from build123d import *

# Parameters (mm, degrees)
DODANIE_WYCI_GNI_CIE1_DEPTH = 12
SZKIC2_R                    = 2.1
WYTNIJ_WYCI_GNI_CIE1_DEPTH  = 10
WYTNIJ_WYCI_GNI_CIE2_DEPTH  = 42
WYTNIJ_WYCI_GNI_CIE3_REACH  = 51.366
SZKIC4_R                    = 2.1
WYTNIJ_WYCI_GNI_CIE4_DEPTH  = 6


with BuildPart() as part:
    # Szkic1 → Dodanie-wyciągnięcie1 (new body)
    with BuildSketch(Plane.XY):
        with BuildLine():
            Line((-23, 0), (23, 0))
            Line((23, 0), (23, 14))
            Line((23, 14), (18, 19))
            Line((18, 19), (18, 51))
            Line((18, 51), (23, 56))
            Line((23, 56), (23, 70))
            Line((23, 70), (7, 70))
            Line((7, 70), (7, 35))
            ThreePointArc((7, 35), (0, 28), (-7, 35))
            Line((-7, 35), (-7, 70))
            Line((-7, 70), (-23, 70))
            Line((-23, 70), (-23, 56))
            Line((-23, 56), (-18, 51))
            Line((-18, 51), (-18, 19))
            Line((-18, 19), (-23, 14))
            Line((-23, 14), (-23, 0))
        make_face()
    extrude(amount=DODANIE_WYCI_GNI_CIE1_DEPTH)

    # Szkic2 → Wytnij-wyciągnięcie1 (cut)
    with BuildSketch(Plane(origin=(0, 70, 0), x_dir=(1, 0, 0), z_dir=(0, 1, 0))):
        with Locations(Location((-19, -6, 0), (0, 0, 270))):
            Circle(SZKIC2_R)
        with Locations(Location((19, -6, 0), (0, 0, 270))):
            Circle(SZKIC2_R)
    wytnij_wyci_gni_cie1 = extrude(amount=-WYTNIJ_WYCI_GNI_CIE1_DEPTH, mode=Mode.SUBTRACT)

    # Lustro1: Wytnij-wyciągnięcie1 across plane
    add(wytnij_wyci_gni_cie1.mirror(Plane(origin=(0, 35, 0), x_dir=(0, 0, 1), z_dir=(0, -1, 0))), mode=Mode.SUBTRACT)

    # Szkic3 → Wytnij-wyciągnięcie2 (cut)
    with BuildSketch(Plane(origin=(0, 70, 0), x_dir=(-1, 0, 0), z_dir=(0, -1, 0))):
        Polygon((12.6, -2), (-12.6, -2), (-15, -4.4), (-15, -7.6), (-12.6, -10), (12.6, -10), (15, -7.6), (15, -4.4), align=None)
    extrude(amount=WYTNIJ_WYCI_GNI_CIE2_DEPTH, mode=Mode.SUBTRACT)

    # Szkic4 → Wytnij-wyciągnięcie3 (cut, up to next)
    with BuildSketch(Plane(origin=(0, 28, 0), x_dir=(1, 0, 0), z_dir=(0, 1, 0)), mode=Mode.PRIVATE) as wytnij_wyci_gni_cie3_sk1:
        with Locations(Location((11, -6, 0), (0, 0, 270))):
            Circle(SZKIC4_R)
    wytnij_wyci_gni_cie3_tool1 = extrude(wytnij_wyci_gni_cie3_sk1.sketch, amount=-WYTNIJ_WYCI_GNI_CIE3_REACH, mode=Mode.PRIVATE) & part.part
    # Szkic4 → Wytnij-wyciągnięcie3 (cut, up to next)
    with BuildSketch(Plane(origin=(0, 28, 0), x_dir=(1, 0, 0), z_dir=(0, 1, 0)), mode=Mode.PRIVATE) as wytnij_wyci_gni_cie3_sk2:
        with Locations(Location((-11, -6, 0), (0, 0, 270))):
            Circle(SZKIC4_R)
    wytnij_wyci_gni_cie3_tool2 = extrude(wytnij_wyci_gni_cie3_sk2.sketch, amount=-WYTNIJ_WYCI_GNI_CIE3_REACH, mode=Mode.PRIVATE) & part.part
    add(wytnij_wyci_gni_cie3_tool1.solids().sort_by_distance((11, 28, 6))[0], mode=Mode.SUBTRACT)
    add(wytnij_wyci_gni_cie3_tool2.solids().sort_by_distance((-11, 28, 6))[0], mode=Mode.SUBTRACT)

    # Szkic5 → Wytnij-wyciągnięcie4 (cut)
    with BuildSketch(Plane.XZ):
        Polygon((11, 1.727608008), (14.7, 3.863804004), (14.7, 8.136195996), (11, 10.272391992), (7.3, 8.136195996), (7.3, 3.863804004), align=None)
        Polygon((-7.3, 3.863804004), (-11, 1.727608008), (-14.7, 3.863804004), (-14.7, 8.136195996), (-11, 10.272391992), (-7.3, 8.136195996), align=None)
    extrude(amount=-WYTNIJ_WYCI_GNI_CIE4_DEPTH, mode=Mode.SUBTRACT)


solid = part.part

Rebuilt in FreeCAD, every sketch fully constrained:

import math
import FreeCAD as App
import Part
import Sketcher
Q = App.Units.Quantity

doc = App.newDocument("Part")
body = doc.addObject("PartDesign::Body", "Body")

# Sketch on XY plane
sketch1 = body.newObject("Sketcher::SketchObject", "Sketch")
sketch1.AttachmentSupport = (doc.getObject("XY_Plane"), [""])
sketch1.MapMode = "FlatFace"
sketch1.addGeometry(Part.LineSegment(App.Vector(-23, 0, 0), App.Vector(23, 0, 0)), False)
sketch1.addGeometry(Part.LineSegment(App.Vector(23, 0, 0), App.Vector(23, 14, 0)), False)
sketch1.addGeometry(Part.LineSegment(App.Vector(23, 14, 0), App.Vector(18, 19, 0)), False)
sketch1.addGeometry(Part.LineSegment(App.Vector(18, 19, 0), App.Vector(18, 51, 0)), False)
sketch1.addGeometry(Part.LineSegment(App.Vector(18, 51, 0), App.Vector(23, 56, 0)), False)
sketch1.addGeometry(Part.LineSegment(App.Vector(23, 56, 0), App.Vector(23, 70, 0)), False)
sketch1.addGeometry(Part.LineSegment(App.Vector(23, 70, 0), App.Vector(7, 70, 0)), False)
sketch1.addGeometry(Part.LineSegment(App.Vector(7, 70, 0), App.Vector(7, 35, 0)), False)
sketch1.addGeometry(Part.ArcOfCircle(Part.Circle(App.Vector(0, 35, 0), App.Vector(0, 0, 1), 7), math.radians(180), math.radians(360)), False)
sketch1.addGeometry(Part.LineSegment(App.Vector(-7, 35, 0), App.Vector(-7, 70, 0)), False)
sketch1.addGeometry(Part.LineSegment(App.Vector(-7, 70, 0), App.Vector(-23, 70, 0)), False)
sketch1.addGeometry(Part.LineSegment(App.Vector(-23, 70, 0), App.Vector(-23, 56, 0)), False)
sketch1.addGeometry(Part.LineSegment(App.Vector(-23, 56, 0), App.Vector(-18, 51, 0)), False)
sketch1.addGeometry(Part.LineSegment(App.Vector(-18, 51, 0), App.Vector(-18, 19, 0)), False)
sketch1.addGeometry(Part.LineSegment(App.Vector(-18, 19, 0), App.Vector(-23, 14, 0)), False)
sketch1.addGeometry(Part.LineSegment(App.Vector(-23, 14, 0), App.Vector(-23, 0, 0)), False)
sketch1.addConstraint(Sketcher.Constraint("Coincident", 0, 2, 1, 1))
sketch1.addConstraint(Sketcher.Constraint("Coincident", 1, 2, 2, 1))
sketch1.addConstraint(Sketcher.Constraint("Coincident", 2, 2, 3, 1))
sketch1.addConstraint(Sketcher.Constraint("Coincident", 3, 2, 4, 1))
sketch1.addConstraint(Sketcher.Constraint("Coincident", 4, 2, 5, 1))
sketch1.addConstraint(Sketcher.Constraint("Coincident", 5, 2, 6, 1))
sketch1.addConstraint(Sketcher.Constraint("Coincident", 6, 2, 7, 1))
sketch1.addConstraint(Sketcher.Constraint("Tangent", 7, 2, 8, 2))
sketch1.addConstraint(Sketcher.Constraint("Tangent", 8, 1, 9, 1))
sketch1.addConstraint(Sketcher.Constraint("Coincident", 9, 2, 10, 1))
sketch1.addConstraint(Sketcher.Constraint("Coincident", 10, 2, 11, 1))
sketch1.addConstraint(Sketcher.Constraint("Coincident", 11, 2, 12, 1))
sketch1.addConstraint(Sketcher.Constraint("Coincident", 12, 2, 13, 1))
sketch1.addConstraint(Sketcher.Constraint("Coincident", 13, 2, 14, 1))
sketch1.addConstraint(Sketcher.Constraint("Coincident", 14, 2, 15, 1))
sketch1.addConstraint(Sketcher.Constraint("Coincident", 15, 2, 0, 1))
sketch1.addConstraint(Sketcher.Constraint("Horizontal", 0))
sketch1.addConstraint(Sketcher.Constraint("Vertical", 1))
sketch1.addConstraint(Sketcher.Constraint("Vertical", 3))
sketch1.addConstraint(Sketcher.Constraint("Vertical", 5))
sketch1.addConstraint(Sketcher.Constraint("Horizontal", 6))
sketch1.addConstraint(Sketcher.Constraint("Vertical", 7))
sketch1.addConstraint(Sketcher.Constraint("Vertical", 9))
sketch1.addConstraint(Sketcher.Constraint("Horizontal", 10))
sketch1.addConstraint(Sketcher.Constraint("Vertical", 11))
sketch1.addConstraint(Sketcher.Constraint("Vertical", 13))
sketch1.addConstraint(Sketcher.Constraint("Vertical", 15))
sketch1.addConstraint(Sketcher.Constraint("Symmetric", 0, 2, 15, 2, -1, 1))
sketch1.addConstraint(Sketcher.Constraint("Symmetric", 6, 2, 9, 2, -2))
sketch1.addConstraint(Sketcher.Constraint("Symmetric", 4, 2, 11, 2, -2))
sketch1.addConstraint(Sketcher.Constraint("Symmetric", 3, 2, 12, 2, -2))
sketch1.addConstraint(Sketcher.Constraint("Perpendicular", 2, 4))
sketch1.addConstraint(Sketcher.Constraint("Perpendicular", 4, 12))
sketch1.addConstraint(Sketcher.Constraint("Perpendicular", 12, 14))
sketch1.addConstraint(Sketcher.Constraint("Horizontal", 2, 2, 13, 2))
sketch1.addConstraint(Sketcher.Constraint("Vertical", 1, 2, 4, 2))
sketch1.addConstraint(Sketcher.Constraint("Equal", 1, 5))
sketch1.addConstraint(Sketcher.Constraint("Radius", 8, 7.0))
sketch1.addConstraint(Sketcher.Constraint("DistanceX", 0, 1, 0, 2, 46.0))
sketch1.addConstraint(Sketcher.Constraint("DistanceY", 1, 1, 1, 2, 14.0))
sketch1.addConstraint(Sketcher.Constraint("DistanceY", 3, 1, 3, 2, 32.0))
sketch1.addConstraint(Sketcher.Constraint("DistanceY", 7, 2, 7, 1, 35.0))
sketch1.addConstraint(Sketcher.Constraint("DistanceY", -1, 1, 8, 3, 35.0))
pad1 = body.newObject("PartDesign::Pad", "Pad")
pad1.Profile = sketch1
pad1.Length = 12

# Sketch on XZ plane
sketch2 = body.newObject("Sketcher::SketchObject", "Sketch001")
sketch2.AttachmentSupport = (doc.getObject("XZ_Plane"), [""])
sketch2.MapMode = "FlatFace"
sketch2.AttachmentOffset = App.Placement(App.Vector(0, 0, -70), App.Rotation())
sketch2.addGeometry(Part.Circle(App.Vector(-19, 6, 0), App.Vector(0, 0, 1), 2.1), False)
sketch2.addGeometry(Part.Circle(App.Vector(19, 6, 0), App.Vector(0, 0, 1), 2.1), False)
sketch2.addConstraint(Sketcher.Constraint("Equal", 0, 1))
sketch2.addConstraint(Sketcher.Constraint("Symmetric", 0, 3, 1, 3, -2))
sketch2.addConstraint(Sketcher.Constraint("Diameter", 0, 4.2))
sketch2.addConstraint(Sketcher.Constraint("DistanceX", 0, 3, -1, 1, 19.0))
sketch2.addConstraint(Sketcher.Constraint("DistanceY", -1, 1, 0, 3, 6.0))
pocket1 = body.newObject("PartDesign::Pocket", "Pocket")
pocket1.Profile = sketch2
pocket1.Length = 10
pocket1.Reversed = True
doc.recompute()

datumplane = body.newObject("PartDesign::Plane", "DatumPlane")
datumplane.AttachmentSupport = (doc.getObject("XZ_Plane"), [""])
datumplane.MapMode = "FlatFace"
datumplane.AttachmentOffset = App.Placement(App.Vector(0, 0, -35), App.Rotation())
mirrored = body.newObject("PartDesign::Mirrored", "Mirrored")
mirrored.Originals = [pocket1]
mirrored.MirrorPlane = (datumplane, [""])
body.Tip = mirrored

# Sketch on XZ plane
sketch3 = body.newObject("Sketcher::SketchObject", "Sketch002")
sketch3.AttachmentSupport = (doc.getObject("XZ_Plane"), [""])
sketch3.MapMode = "FlatFace"
sketch3.AttachmentOffset = App.Placement(App.Vector(0, 0, -70), App.Rotation())
sketch3.addGeometry(Part.LineSegment(App.Vector(-12.6, 2, 0), App.Vector(12.6, 2, 0)), False)
sketch3.addGeometry(Part.LineSegment(App.Vector(12.6, 2, 0), App.Vector(15, 4.4, 0)), False)
sketch3.addGeometry(Part.LineSegment(App.Vector(15, 4.4, 0), App.Vector(15, 7.6, 0)), False)
sketch3.addGeometry(Part.LineSegment(App.Vector(15, 7.6, 0), App.Vector(12.6, 10, 0)), False)
sketch3.addGeometry(Part.LineSegment(App.Vector(12.6, 10, 0), App.Vector(-12.6, 10, 0)), False)
sketch3.addGeometry(Part.LineSegment(App.Vector(-12.6, 10, 0), App.Vector(-15, 7.6, 0)), False)
sketch3.addGeometry(Part.LineSegment(App.Vector(-15, 7.6, 0), App.Vector(-15, 4.4, 0)), False)
sketch3.addGeometry(Part.LineSegment(App.Vector(-15, 4.4, 0), App.Vector(-12.6, 2, 0)), False)
sketch3.addConstraint(Sketcher.Constraint("Coincident", 0, 2, 1, 1))
sketch3.addConstraint(Sketcher.Constraint("Coincident", 1, 2, 2, 1))
sketch3.addConstraint(Sketcher.Constraint("Coincident", 2, 2, 3, 1))
sketch3.addConstraint(Sketcher.Constraint("Coincident", 3, 2, 4, 1))
sketch3.addConstraint(Sketcher.Constraint("Coincident", 4, 2, 5, 1))
sketch3.addConstraint(Sketcher.Constraint("Coincident", 5, 2, 6, 1))
sketch3.addConstraint(Sketcher.Constraint("Coincident", 6, 2, 7, 1))
sketch3.addConstraint(Sketcher.Constraint("Coincident", 7, 2, 0, 1))
sketch3.addConstraint(Sketcher.Constraint("Horizontal", 0))
sketch3.addConstraint(Sketcher.Constraint("Vertical", 2))
sketch3.addConstraint(Sketcher.Constraint("Horizontal", 4))
sketch3.addConstraint(Sketcher.Constraint("Vertical", 6))
sketch3.addConstraint(Sketcher.Constraint("Symmetric", 2, 2, 5, 2, -2))
sketch3.addConstraint(Sketcher.Constraint("Perpendicular", 1, 3))
sketch3.addConstraint(Sketcher.Constraint("Perpendicular", 3, 5))
sketch3.addConstraint(Sketcher.Constraint("Perpendicular", 5, 7))
sketch3.addConstraint(Sketcher.Constraint("Horizontal", 1, 2, 6, 2))
sketch3.addConstraint(Sketcher.Constraint("Vertical", 0, 2, 3, 2))
sketch3.addConstraint(Sketcher.Constraint("Vertical", 4, 2, 7, 2))
sketch3.addConstraint(Sketcher.Constraint("DistanceX", 0, 1, 0, 2, 25.2))
sketch3.addConstraint(Sketcher.Constraint("DistanceY", 2, 1, 2, 2, 3.2))
sketch3.addConstraint(Sketcher.Constraint("DistanceY", -1, 1, 0, 2, 2.0))
sketch3.addConstraint(Sketcher.Constraint("DistanceX", -1, 1, 1, 2, 15.0))
pocket2 = body.newObject("PartDesign::Pocket", "Pocket001")
pocket2.Profile = sketch3
pocket2.Length = 42
pocket2.Reversed = True

# Sketch on XZ plane
sketch4 = body.newObject("Sketcher::SketchObject", "Sketch003")
sketch4.AttachmentSupport = (doc.getObject("XZ_Plane"), [""])
sketch4.MapMode = "FlatFace"
sketch4.AttachmentOffset = App.Placement(App.Vector(0, 0, -28), App.Rotation())
sketch4.addGeometry(Part.Circle(App.Vector(11, 6, 0), App.Vector(0, 0, 1), 2.1), False)
sketch4.addConstraint(Sketcher.Constraint("Diameter", 0, 4.2))
sketch4.addConstraint(Sketcher.Constraint("DistanceX", -1, 1, 0, 3, 11.0))
sketch4.addConstraint(Sketcher.Constraint("DistanceY", -1, 1, 0, 3, 6.0))
pocket3 = body.newObject("PartDesign::Pocket", "Pocket002")
pocket3.Profile = sketch4
pocket3.Type = "UpToFirst"
pocket3.Reversed = True

# Sketch on XZ plane
sketch5 = body.newObject("Sketcher::SketchObject", "Sketch004")
sketch5.AttachmentSupport = (doc.getObject("XZ_Plane"), [""])
sketch5.MapMode = "FlatFace"
sketch5.AttachmentOffset = App.Placement(App.Vector(0, 0, -28), App.Rotation())
sketch5.addGeometry(Part.Circle(App.Vector(-11, 6, 0), App.Vector(0, 0, 1), 2.1), False)
sketch5.addConstraint(Sketcher.Constraint("Diameter", 0, 4.2))
sketch5.addConstraint(Sketcher.Constraint("DistanceX", 0, 3, -1, 1, 11.0))
sketch5.addConstraint(Sketcher.Constraint("DistanceY", -1, 1, 0, 3, 6.0))
pocket4 = body.newObject("PartDesign::Pocket", "Pocket003")
pocket4.Profile = sketch5
pocket4.Type = "UpToFirst"
pocket4.Reversed = True

# Sketch on XZ plane
sketch6 = body.newObject("Sketcher::SketchObject", "Sketch005")
sketch6.AttachmentSupport = (doc.getObject("XZ_Plane"), [""])
sketch6.MapMode = "FlatFace"
sketch6.addGeometry(Part.LineSegment(App.Vector(11, 1.7, 0), App.Vector(14.7, 3.9, 0)), False)
sketch6.addGeometry(Part.LineSegment(App.Vector(14.7, 3.9, 0), App.Vector(14.7, 8.1, 0)), False)
sketch6.addGeometry(Part.LineSegment(App.Vector(14.7, 8.1, 0), App.Vector(11, 10.3, 0)), False)
sketch6.addGeometry(Part.LineSegment(App.Vector(11, 10.3, 0), App.Vector(7.3, 8.1, 0)), False)
sketch6.addGeometry(Part.LineSegment(App.Vector(7.3, 8.1, 0), App.Vector(7.3, 3.9, 0)), False)
sketch6.addGeometry(Part.LineSegment(App.Vector(7.3, 3.9, 0), App.Vector(11, 1.7, 0)), False)
sketch6.addGeometry(Part.LineSegment(App.Vector(-11, 1.7, 0), App.Vector(-7.3, 3.9, 0)), False)
sketch6.addGeometry(Part.LineSegment(App.Vector(-7.3, 3.9, 0), App.Vector(-7.3, 8.1, 0)), False)
sketch6.addGeometry(Part.LineSegment(App.Vector(-7.3, 8.1, 0), App.Vector(-11, 10.3, 0)), False)
sketch6.addGeometry(Part.LineSegment(App.Vector(-11, 10.3, 0), App.Vector(-14.7, 8.1, 0)), False)
sketch6.addGeometry(Part.LineSegment(App.Vector(-14.7, 8.1, 0), App.Vector(-14.7, 3.9, 0)), False)
sketch6.addGeometry(Part.LineSegment(App.Vector(-14.7, 3.9, 0), App.Vector(-11, 1.7, 0)), False)
sketch6.addConstraint(Sketcher.Constraint("Coincident", 0, 2, 1, 1))
sketch6.addConstraint(Sketcher.Constraint("Coincident", 1, 2, 2, 1))
sketch6.addConstraint(Sketcher.Constraint("Coincident", 2, 2, 3, 1))
sketch6.addConstraint(Sketcher.Constraint("Coincident", 3, 2, 4, 1))
sketch6.addConstraint(Sketcher.Constraint("Coincident", 4, 2, 5, 1))
sketch6.addConstraint(Sketcher.Constraint("Coincident", 5, 2, 0, 1))
sketch6.addConstraint(Sketcher.Constraint("Coincident", 6, 2, 7, 1))
sketch6.addConstraint(Sketcher.Constraint("Coincident", 7, 2, 8, 1))
sketch6.addConstraint(Sketcher.Constraint("Coincident", 8, 2, 9, 1))
sketch6.addConstraint(Sketcher.Constraint("Coincident", 9, 2, 10, 1))
sketch6.addConstraint(Sketcher.Constraint("Coincident", 10, 2, 11, 1))
sketch6.addConstraint(Sketcher.Constraint("Coincident", 11, 2, 6, 1))
sketch6.addConstraint(Sketcher.Constraint("Vertical", 1))
sketch6.addConstraint(Sketcher.Constraint("Vertical", 4))
sketch6.addConstraint(Sketcher.Constraint("Vertical", 7))
sketch6.addConstraint(Sketcher.Constraint("Vertical", 10))
sketch6.addConstraint(Sketcher.Constraint("Symmetric", 4, 2, 6, 2, -2))
sketch6.addConstraint(Sketcher.Constraint("Symmetric", 2, 2, 8, 2, -2))
sketch6.addConstraint(Sketcher.Constraint("Symmetric", 1, 2, 9, 2, -2))
sketch6.addConstraint(Sketcher.Constraint("Symmetric", 5, 2, 11, 2, -2))
sketch6.addConstraint(Sketcher.Constraint("Parallel", 0, 3))
sketch6.addConstraint(Sketcher.Constraint("Parallel", 2, 5))
sketch6.addConstraint(Sketcher.Constraint("Parallel", 3, 6))
sketch6.addConstraint(Sketcher.Constraint("Parallel", 5, 8))
sketch6.addConstraint(Sketcher.Constraint("Parallel", 8, 11))
sketch6.addConstraint(Sketcher.Constraint("Horizontal", 1, 2, 3, 2))
sketch6.addConstraint(Sketcher.Constraint("Horizontal", 0, 2, 4, 2))
sketch6.addConstraint(Sketcher.Constraint("Angle", 0, Q("30 deg")))
sketch6.addConstraint(Sketcher.Constraint("DistanceX", -1, 1, 2, 2, 11.0))
sketch6.addConstraint(Sketcher.Constraint("DistanceX", -1, 1, 0, 2, 14.7))
sketch6.addConstraint(Sketcher.Constraint("DistanceY", 1, 1, 1, 2, 4.272392))
sketch6.addConstraint(Sketcher.Constraint("DistanceY", -1, 1, 2, 2, 10.272392))
pocket5 = body.newObject("PartDesign::Pocket", "Pocket004")
pocket5.Profile = sketch6
pocket5.Length = 6

doc.recompute()
